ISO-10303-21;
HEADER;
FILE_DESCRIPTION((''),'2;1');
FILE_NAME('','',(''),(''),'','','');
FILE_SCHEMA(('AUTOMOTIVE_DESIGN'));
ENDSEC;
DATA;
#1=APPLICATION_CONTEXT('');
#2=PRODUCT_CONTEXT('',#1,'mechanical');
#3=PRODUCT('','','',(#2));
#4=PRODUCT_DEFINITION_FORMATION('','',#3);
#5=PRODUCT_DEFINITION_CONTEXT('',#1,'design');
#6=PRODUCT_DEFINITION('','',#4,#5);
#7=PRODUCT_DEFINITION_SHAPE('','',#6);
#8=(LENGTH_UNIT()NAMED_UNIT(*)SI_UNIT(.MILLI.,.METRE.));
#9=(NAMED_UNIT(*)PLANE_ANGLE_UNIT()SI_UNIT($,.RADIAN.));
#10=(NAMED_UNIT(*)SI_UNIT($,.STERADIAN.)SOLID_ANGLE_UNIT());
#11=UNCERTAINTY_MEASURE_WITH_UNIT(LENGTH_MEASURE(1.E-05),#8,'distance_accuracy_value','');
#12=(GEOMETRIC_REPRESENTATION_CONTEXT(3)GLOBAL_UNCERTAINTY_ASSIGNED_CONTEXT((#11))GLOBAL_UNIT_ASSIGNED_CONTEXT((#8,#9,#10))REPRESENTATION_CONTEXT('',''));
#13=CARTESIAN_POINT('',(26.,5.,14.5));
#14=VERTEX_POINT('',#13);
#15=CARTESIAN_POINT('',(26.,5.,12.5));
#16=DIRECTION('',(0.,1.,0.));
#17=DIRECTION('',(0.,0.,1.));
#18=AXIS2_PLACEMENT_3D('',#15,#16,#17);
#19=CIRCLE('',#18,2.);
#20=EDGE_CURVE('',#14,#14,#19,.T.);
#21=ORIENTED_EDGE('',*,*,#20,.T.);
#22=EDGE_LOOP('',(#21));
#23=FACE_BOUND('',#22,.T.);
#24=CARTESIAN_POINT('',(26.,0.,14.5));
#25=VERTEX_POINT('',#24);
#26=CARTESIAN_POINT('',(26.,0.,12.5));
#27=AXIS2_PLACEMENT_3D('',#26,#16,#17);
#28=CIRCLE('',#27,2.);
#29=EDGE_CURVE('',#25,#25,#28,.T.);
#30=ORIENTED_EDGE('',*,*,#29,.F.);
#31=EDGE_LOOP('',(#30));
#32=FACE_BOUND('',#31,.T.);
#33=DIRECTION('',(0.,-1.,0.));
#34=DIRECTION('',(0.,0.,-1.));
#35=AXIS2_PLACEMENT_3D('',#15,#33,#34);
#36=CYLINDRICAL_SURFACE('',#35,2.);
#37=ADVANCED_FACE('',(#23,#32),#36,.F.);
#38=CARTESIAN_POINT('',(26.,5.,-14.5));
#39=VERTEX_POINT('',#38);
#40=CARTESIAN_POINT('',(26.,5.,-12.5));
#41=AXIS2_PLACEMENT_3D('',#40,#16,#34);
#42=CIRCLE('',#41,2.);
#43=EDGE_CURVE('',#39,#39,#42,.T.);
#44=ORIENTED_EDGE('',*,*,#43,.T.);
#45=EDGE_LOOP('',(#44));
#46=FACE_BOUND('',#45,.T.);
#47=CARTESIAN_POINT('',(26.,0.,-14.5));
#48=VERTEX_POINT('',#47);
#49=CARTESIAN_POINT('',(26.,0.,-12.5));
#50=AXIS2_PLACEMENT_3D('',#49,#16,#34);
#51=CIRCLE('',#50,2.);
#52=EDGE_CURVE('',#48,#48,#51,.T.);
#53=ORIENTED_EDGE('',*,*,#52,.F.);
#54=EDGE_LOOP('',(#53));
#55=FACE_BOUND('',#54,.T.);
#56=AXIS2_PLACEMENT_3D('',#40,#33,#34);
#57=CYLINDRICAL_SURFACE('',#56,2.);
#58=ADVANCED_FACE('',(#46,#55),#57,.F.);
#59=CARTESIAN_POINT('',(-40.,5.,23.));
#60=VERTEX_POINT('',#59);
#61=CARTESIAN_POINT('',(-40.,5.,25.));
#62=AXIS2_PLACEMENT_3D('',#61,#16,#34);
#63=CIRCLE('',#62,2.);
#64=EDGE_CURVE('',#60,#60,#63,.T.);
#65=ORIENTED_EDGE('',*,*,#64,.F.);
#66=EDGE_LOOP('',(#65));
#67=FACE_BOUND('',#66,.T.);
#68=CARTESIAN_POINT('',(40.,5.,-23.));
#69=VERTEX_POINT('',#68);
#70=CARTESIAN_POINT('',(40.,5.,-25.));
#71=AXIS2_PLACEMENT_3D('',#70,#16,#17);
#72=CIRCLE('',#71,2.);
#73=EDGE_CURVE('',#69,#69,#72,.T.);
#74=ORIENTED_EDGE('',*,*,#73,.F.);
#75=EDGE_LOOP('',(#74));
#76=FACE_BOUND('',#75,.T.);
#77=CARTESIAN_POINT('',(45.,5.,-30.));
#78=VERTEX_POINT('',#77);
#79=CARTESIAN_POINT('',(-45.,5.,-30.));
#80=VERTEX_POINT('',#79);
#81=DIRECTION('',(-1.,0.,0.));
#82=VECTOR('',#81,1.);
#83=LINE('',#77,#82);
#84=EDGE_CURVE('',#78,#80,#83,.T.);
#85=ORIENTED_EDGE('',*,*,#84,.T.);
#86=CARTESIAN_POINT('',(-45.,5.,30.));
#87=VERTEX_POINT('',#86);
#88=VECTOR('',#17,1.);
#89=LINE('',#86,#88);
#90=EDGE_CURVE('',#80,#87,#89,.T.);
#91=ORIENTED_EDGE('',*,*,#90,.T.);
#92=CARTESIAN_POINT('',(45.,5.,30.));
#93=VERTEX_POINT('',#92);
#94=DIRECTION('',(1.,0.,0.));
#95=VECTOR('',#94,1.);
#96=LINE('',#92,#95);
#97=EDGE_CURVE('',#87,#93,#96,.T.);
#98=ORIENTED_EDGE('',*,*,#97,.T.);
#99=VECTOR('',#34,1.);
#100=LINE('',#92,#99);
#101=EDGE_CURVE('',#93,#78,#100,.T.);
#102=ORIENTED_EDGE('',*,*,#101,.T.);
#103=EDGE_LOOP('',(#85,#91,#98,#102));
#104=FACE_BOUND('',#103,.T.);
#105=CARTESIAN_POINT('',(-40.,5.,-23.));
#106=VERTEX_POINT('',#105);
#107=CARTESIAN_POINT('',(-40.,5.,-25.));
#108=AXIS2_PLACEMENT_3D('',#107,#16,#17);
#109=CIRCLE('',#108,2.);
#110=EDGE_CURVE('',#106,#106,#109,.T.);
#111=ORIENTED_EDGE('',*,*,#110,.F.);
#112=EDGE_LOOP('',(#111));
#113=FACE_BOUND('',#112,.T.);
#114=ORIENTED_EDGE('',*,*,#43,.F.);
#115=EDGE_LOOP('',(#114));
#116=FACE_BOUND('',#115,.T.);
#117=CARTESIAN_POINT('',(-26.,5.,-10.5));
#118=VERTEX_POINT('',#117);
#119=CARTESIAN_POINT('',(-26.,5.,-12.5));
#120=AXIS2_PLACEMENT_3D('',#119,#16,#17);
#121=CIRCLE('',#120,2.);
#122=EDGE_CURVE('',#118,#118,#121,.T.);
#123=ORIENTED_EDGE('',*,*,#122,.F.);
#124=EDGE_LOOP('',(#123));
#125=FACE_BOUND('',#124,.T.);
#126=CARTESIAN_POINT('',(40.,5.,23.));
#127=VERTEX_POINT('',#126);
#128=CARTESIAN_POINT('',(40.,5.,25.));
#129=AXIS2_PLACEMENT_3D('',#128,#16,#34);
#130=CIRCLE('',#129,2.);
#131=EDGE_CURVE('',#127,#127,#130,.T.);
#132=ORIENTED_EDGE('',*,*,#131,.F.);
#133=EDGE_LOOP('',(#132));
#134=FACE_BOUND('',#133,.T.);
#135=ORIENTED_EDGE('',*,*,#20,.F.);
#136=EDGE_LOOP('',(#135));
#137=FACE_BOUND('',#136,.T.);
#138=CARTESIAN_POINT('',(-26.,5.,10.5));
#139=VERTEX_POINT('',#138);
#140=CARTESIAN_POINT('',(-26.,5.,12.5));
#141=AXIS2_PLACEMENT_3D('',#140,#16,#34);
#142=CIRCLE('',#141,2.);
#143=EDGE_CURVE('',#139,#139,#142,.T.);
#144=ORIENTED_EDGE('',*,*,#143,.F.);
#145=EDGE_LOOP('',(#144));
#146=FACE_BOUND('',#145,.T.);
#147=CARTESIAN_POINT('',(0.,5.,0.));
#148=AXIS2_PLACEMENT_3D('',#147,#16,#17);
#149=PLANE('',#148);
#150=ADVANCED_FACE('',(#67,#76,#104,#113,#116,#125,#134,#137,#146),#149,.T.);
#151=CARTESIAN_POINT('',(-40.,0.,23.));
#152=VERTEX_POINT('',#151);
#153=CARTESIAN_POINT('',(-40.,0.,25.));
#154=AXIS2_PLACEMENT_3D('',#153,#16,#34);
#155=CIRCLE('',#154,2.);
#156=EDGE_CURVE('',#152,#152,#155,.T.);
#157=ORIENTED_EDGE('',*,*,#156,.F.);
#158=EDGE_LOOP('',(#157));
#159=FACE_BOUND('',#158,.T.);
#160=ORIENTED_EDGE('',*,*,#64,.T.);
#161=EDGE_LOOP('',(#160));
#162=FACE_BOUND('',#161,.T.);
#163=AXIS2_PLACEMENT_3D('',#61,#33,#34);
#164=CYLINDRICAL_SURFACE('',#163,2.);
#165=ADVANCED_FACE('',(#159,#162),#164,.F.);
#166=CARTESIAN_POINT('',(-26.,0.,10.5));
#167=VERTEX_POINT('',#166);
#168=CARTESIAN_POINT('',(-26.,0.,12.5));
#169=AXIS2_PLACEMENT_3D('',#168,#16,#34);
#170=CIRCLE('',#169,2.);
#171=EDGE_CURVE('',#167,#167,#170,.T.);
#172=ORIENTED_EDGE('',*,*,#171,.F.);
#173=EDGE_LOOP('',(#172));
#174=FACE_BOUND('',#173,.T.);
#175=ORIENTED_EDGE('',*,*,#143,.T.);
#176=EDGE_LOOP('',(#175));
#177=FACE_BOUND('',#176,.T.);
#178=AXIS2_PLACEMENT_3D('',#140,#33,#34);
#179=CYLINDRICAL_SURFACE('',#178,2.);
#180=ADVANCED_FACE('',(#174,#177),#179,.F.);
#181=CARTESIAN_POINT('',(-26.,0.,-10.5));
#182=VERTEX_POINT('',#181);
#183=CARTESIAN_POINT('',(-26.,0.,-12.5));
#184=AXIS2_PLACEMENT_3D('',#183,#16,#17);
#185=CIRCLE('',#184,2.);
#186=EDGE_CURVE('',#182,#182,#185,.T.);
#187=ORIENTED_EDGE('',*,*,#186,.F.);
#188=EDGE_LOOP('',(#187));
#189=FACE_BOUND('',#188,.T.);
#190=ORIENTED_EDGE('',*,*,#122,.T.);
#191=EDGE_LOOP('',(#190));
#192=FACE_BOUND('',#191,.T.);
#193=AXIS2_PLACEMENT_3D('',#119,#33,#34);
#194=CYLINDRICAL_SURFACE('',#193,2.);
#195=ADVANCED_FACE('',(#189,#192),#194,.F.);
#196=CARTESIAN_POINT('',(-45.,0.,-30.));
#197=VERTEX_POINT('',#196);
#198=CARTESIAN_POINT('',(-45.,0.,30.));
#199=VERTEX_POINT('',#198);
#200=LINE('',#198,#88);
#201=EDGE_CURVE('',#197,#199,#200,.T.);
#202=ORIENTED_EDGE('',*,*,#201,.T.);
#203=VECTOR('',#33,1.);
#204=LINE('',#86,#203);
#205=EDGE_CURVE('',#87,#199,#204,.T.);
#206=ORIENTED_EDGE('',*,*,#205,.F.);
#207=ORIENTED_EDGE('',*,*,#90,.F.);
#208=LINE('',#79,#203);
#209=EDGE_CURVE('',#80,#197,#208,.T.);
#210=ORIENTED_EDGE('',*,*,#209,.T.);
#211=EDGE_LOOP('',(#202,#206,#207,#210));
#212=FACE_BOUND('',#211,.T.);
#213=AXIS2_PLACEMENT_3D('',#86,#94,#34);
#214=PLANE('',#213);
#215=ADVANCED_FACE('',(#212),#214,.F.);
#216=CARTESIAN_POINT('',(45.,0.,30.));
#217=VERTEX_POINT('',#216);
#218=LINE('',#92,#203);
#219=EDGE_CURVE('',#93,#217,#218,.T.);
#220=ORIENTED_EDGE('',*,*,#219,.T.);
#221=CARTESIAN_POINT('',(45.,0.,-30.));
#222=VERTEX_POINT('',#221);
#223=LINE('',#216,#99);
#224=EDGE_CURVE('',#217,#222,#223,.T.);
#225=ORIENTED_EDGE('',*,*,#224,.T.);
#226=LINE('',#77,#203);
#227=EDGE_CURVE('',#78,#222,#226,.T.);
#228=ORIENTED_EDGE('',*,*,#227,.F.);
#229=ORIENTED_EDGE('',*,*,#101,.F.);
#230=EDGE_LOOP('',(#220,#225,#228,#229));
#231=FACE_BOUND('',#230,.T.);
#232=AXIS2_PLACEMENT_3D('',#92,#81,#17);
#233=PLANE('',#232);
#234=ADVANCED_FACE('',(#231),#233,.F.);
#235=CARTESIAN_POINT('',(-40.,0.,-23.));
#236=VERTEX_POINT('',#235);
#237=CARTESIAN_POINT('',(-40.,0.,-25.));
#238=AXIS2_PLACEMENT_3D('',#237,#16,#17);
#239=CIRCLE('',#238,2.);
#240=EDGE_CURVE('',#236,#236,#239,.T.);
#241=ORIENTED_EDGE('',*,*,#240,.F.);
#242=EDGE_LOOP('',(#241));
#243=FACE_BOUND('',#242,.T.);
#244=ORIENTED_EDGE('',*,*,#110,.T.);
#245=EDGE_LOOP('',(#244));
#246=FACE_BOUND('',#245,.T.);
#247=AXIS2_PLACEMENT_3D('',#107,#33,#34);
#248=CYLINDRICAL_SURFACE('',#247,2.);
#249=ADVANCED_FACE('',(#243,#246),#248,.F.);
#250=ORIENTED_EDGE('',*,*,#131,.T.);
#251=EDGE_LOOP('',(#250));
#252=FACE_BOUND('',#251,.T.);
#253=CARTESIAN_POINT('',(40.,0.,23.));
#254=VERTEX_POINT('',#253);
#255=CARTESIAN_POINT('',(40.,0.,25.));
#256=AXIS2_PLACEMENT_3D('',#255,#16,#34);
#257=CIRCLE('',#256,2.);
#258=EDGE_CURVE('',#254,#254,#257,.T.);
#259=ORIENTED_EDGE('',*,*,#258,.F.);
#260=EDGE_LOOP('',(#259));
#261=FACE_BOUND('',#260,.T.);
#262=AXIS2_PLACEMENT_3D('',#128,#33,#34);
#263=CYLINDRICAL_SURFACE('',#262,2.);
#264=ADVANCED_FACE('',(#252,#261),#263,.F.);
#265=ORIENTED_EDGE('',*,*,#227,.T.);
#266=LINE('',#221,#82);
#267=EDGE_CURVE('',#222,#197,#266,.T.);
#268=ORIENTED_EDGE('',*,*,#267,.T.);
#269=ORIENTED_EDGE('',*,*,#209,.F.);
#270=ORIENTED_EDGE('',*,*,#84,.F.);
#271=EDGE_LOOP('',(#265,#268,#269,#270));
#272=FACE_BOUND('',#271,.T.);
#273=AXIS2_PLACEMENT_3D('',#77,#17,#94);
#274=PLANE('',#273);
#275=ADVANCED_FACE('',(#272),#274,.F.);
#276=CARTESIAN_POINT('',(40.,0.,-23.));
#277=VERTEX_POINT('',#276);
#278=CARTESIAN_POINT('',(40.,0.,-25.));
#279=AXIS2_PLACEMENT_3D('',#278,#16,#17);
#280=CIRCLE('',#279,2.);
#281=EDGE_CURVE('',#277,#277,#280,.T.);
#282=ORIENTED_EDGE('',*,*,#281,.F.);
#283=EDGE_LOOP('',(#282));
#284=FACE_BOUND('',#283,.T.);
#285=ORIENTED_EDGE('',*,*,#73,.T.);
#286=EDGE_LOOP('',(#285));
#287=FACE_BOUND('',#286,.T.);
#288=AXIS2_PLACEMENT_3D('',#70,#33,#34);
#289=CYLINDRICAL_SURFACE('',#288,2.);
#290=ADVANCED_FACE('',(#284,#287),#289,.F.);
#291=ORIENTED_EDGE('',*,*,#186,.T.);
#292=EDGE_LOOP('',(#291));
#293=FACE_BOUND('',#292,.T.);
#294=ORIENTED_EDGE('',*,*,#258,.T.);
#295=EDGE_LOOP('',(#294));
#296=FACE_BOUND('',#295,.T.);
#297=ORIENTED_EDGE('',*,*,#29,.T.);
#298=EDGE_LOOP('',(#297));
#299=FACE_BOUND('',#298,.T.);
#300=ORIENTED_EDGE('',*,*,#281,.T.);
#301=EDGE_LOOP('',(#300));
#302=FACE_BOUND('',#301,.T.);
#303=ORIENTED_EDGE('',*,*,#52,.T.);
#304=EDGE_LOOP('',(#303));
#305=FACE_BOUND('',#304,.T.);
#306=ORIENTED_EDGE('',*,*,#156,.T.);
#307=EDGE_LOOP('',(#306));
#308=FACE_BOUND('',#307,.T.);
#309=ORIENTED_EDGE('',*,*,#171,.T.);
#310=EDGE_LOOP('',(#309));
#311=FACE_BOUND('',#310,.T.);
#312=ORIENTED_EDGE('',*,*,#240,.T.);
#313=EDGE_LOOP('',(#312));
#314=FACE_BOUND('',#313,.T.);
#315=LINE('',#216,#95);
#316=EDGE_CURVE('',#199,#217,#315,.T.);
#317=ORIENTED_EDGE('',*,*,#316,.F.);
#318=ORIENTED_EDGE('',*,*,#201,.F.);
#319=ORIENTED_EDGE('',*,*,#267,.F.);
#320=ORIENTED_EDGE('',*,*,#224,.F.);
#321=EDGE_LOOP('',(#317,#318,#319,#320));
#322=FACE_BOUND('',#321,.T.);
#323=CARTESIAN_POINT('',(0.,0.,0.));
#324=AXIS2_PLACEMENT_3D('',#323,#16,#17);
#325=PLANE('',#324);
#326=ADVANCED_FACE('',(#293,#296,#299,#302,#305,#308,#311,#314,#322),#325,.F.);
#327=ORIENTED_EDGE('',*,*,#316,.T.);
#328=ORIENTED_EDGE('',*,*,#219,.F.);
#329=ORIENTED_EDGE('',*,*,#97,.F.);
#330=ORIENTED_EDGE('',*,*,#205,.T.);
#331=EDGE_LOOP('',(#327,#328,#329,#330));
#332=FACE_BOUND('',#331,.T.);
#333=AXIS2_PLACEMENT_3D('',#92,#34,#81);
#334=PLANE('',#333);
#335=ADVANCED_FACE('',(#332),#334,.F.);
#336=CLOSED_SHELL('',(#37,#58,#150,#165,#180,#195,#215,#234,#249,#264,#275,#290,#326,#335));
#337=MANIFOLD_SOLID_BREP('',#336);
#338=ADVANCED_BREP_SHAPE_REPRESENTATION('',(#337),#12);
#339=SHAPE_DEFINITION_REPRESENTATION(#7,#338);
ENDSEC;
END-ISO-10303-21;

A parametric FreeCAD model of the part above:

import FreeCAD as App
import Part
import Sketcher

V = App.Vector


def add_polygon(sketch, points):
    """Adds a closed chain of lines whose ends are joined by coincident constraints."""
    first, n = sketch.GeometryCount, len(points)
    for a, b in zip(points, points[1:] + points[:1]):
        sketch.addGeometry(Part.LineSegment(App.Vector(*a, 0), App.Vector(*b, 0)), False)
    for i in range(n):
        sketch.addConstraint(Sketcher.Constraint("Coincident", first + i, 2, first + (i + 1) % n, 1))

doc = App.newDocument("Part")
body = doc.addObject("PartDesign::Body", "Body")

sketch1 = body.newObject("Sketcher::SketchObject", "Sketch")
sketch1.AttachmentSupport = (doc.getObject("XZ_Plane"), [""])
sketch1.MapMode = "FlatFace"
add_polygon(sketch1, [(-45, -30), (-45, 30), (45, 30), (45, -30)])
sketch1.addGeometry(Part.Circle(V(-40, 25, 0), V(0, 0, 1), 2), False)
sketch1.addGeometry(Part.Circle(V(-26, 12.5, 0), V(0, 0, 1), 2), False)
sketch1.addGeometry(Part.Circle(V(40, 25, 0), V(0, 0, 1), 2), False)
sketch1.addGeometry(Part.Circle(V(26, 12.5, 0), V(0, 0, 1), 2), False)
sketch1.addGeometry(Part.Circle(V(-26, -12.5, 0), V(0, 0, 1), 2), False)
sketch1.addGeometry(Part.Circle(V(-40, -25, 0), V(0, 0, 1), 2), False)
sketch1.addGeometry(Part.Circle(V(26, -12.5, 0), V(0, 0, 1), 2), False)
sketch1.addGeometry(Part.Circle(V(40, -25, 0), V(0, 0, 1), 2), False)
sketch1.addConstraint([
    Sketcher.Constraint("Vertical", 0),
    Sketcher.Constraint("Horizontal", 1),
    Sketcher.Constraint("Vertical", 2),
    Sketcher.Constraint("Horizontal", 3),
    Sketcher.Constraint("Equal", 4, 5),
    Sketcher.Constraint("Equal", 5, 6),
    Sketcher.Constraint("Equal", 6, 7),
    Sketcher.Constraint("Equal", 7, 8),
    Sketcher.Constraint("Equal", 8, 9),
    Sketcher.Constraint("Equal", 9, 10),
    Sketcher.Constraint("Equal", 10, 11),
    Sketcher.Constraint("Symmetric", 7, 3, 8, 3, -1, 1),
    Sketcher.Constraint("Symmetric", 6, 3, 9, 3, -1, 1),
    Sketcher.Constraint("Symmetric", 5, 3, 10, 3, -1, 1),
    Sketcher.Constraint("Symmetric", 4, 3, 11, 3, -1, 1),
    Sketcher.Constraint("Symmetric", 0, 2, 2, 2, -1, 1),
    Sketcher.Constraint("Symmetric", 4, 3, 6, 3, -2),
    Sketcher.Constraint("Symmetric", 5, 3, 7, 3, -2),
    Sketcher.Constraint("Diameter", 4, 4.0),
    Sketcher.Constraint("DistanceX", 1, 1, 1, 2, 90.0),
    Sketcher.Constraint("DistanceY", 0, 1, 0, 2, 60.0),
    Sketcher.Constraint("DistanceX", 4, 3, -1, 1, 40.0),
    Sketcher.Constraint("DistanceY", -1, 1, 4, 3, 25.0),
    Sketcher.Constraint("DistanceX", 5, 3, -1, 1, 26.0),
    Sketcher.Constraint("DistanceY", 8, 3, 5, 3, 25.0),
])
pad1 = body.newObject("PartDesign::Pad", "Pad")
pad1.Profile = sketch1
pad1.Length = 5
pad1.Reversed = True

doc.recompute()
